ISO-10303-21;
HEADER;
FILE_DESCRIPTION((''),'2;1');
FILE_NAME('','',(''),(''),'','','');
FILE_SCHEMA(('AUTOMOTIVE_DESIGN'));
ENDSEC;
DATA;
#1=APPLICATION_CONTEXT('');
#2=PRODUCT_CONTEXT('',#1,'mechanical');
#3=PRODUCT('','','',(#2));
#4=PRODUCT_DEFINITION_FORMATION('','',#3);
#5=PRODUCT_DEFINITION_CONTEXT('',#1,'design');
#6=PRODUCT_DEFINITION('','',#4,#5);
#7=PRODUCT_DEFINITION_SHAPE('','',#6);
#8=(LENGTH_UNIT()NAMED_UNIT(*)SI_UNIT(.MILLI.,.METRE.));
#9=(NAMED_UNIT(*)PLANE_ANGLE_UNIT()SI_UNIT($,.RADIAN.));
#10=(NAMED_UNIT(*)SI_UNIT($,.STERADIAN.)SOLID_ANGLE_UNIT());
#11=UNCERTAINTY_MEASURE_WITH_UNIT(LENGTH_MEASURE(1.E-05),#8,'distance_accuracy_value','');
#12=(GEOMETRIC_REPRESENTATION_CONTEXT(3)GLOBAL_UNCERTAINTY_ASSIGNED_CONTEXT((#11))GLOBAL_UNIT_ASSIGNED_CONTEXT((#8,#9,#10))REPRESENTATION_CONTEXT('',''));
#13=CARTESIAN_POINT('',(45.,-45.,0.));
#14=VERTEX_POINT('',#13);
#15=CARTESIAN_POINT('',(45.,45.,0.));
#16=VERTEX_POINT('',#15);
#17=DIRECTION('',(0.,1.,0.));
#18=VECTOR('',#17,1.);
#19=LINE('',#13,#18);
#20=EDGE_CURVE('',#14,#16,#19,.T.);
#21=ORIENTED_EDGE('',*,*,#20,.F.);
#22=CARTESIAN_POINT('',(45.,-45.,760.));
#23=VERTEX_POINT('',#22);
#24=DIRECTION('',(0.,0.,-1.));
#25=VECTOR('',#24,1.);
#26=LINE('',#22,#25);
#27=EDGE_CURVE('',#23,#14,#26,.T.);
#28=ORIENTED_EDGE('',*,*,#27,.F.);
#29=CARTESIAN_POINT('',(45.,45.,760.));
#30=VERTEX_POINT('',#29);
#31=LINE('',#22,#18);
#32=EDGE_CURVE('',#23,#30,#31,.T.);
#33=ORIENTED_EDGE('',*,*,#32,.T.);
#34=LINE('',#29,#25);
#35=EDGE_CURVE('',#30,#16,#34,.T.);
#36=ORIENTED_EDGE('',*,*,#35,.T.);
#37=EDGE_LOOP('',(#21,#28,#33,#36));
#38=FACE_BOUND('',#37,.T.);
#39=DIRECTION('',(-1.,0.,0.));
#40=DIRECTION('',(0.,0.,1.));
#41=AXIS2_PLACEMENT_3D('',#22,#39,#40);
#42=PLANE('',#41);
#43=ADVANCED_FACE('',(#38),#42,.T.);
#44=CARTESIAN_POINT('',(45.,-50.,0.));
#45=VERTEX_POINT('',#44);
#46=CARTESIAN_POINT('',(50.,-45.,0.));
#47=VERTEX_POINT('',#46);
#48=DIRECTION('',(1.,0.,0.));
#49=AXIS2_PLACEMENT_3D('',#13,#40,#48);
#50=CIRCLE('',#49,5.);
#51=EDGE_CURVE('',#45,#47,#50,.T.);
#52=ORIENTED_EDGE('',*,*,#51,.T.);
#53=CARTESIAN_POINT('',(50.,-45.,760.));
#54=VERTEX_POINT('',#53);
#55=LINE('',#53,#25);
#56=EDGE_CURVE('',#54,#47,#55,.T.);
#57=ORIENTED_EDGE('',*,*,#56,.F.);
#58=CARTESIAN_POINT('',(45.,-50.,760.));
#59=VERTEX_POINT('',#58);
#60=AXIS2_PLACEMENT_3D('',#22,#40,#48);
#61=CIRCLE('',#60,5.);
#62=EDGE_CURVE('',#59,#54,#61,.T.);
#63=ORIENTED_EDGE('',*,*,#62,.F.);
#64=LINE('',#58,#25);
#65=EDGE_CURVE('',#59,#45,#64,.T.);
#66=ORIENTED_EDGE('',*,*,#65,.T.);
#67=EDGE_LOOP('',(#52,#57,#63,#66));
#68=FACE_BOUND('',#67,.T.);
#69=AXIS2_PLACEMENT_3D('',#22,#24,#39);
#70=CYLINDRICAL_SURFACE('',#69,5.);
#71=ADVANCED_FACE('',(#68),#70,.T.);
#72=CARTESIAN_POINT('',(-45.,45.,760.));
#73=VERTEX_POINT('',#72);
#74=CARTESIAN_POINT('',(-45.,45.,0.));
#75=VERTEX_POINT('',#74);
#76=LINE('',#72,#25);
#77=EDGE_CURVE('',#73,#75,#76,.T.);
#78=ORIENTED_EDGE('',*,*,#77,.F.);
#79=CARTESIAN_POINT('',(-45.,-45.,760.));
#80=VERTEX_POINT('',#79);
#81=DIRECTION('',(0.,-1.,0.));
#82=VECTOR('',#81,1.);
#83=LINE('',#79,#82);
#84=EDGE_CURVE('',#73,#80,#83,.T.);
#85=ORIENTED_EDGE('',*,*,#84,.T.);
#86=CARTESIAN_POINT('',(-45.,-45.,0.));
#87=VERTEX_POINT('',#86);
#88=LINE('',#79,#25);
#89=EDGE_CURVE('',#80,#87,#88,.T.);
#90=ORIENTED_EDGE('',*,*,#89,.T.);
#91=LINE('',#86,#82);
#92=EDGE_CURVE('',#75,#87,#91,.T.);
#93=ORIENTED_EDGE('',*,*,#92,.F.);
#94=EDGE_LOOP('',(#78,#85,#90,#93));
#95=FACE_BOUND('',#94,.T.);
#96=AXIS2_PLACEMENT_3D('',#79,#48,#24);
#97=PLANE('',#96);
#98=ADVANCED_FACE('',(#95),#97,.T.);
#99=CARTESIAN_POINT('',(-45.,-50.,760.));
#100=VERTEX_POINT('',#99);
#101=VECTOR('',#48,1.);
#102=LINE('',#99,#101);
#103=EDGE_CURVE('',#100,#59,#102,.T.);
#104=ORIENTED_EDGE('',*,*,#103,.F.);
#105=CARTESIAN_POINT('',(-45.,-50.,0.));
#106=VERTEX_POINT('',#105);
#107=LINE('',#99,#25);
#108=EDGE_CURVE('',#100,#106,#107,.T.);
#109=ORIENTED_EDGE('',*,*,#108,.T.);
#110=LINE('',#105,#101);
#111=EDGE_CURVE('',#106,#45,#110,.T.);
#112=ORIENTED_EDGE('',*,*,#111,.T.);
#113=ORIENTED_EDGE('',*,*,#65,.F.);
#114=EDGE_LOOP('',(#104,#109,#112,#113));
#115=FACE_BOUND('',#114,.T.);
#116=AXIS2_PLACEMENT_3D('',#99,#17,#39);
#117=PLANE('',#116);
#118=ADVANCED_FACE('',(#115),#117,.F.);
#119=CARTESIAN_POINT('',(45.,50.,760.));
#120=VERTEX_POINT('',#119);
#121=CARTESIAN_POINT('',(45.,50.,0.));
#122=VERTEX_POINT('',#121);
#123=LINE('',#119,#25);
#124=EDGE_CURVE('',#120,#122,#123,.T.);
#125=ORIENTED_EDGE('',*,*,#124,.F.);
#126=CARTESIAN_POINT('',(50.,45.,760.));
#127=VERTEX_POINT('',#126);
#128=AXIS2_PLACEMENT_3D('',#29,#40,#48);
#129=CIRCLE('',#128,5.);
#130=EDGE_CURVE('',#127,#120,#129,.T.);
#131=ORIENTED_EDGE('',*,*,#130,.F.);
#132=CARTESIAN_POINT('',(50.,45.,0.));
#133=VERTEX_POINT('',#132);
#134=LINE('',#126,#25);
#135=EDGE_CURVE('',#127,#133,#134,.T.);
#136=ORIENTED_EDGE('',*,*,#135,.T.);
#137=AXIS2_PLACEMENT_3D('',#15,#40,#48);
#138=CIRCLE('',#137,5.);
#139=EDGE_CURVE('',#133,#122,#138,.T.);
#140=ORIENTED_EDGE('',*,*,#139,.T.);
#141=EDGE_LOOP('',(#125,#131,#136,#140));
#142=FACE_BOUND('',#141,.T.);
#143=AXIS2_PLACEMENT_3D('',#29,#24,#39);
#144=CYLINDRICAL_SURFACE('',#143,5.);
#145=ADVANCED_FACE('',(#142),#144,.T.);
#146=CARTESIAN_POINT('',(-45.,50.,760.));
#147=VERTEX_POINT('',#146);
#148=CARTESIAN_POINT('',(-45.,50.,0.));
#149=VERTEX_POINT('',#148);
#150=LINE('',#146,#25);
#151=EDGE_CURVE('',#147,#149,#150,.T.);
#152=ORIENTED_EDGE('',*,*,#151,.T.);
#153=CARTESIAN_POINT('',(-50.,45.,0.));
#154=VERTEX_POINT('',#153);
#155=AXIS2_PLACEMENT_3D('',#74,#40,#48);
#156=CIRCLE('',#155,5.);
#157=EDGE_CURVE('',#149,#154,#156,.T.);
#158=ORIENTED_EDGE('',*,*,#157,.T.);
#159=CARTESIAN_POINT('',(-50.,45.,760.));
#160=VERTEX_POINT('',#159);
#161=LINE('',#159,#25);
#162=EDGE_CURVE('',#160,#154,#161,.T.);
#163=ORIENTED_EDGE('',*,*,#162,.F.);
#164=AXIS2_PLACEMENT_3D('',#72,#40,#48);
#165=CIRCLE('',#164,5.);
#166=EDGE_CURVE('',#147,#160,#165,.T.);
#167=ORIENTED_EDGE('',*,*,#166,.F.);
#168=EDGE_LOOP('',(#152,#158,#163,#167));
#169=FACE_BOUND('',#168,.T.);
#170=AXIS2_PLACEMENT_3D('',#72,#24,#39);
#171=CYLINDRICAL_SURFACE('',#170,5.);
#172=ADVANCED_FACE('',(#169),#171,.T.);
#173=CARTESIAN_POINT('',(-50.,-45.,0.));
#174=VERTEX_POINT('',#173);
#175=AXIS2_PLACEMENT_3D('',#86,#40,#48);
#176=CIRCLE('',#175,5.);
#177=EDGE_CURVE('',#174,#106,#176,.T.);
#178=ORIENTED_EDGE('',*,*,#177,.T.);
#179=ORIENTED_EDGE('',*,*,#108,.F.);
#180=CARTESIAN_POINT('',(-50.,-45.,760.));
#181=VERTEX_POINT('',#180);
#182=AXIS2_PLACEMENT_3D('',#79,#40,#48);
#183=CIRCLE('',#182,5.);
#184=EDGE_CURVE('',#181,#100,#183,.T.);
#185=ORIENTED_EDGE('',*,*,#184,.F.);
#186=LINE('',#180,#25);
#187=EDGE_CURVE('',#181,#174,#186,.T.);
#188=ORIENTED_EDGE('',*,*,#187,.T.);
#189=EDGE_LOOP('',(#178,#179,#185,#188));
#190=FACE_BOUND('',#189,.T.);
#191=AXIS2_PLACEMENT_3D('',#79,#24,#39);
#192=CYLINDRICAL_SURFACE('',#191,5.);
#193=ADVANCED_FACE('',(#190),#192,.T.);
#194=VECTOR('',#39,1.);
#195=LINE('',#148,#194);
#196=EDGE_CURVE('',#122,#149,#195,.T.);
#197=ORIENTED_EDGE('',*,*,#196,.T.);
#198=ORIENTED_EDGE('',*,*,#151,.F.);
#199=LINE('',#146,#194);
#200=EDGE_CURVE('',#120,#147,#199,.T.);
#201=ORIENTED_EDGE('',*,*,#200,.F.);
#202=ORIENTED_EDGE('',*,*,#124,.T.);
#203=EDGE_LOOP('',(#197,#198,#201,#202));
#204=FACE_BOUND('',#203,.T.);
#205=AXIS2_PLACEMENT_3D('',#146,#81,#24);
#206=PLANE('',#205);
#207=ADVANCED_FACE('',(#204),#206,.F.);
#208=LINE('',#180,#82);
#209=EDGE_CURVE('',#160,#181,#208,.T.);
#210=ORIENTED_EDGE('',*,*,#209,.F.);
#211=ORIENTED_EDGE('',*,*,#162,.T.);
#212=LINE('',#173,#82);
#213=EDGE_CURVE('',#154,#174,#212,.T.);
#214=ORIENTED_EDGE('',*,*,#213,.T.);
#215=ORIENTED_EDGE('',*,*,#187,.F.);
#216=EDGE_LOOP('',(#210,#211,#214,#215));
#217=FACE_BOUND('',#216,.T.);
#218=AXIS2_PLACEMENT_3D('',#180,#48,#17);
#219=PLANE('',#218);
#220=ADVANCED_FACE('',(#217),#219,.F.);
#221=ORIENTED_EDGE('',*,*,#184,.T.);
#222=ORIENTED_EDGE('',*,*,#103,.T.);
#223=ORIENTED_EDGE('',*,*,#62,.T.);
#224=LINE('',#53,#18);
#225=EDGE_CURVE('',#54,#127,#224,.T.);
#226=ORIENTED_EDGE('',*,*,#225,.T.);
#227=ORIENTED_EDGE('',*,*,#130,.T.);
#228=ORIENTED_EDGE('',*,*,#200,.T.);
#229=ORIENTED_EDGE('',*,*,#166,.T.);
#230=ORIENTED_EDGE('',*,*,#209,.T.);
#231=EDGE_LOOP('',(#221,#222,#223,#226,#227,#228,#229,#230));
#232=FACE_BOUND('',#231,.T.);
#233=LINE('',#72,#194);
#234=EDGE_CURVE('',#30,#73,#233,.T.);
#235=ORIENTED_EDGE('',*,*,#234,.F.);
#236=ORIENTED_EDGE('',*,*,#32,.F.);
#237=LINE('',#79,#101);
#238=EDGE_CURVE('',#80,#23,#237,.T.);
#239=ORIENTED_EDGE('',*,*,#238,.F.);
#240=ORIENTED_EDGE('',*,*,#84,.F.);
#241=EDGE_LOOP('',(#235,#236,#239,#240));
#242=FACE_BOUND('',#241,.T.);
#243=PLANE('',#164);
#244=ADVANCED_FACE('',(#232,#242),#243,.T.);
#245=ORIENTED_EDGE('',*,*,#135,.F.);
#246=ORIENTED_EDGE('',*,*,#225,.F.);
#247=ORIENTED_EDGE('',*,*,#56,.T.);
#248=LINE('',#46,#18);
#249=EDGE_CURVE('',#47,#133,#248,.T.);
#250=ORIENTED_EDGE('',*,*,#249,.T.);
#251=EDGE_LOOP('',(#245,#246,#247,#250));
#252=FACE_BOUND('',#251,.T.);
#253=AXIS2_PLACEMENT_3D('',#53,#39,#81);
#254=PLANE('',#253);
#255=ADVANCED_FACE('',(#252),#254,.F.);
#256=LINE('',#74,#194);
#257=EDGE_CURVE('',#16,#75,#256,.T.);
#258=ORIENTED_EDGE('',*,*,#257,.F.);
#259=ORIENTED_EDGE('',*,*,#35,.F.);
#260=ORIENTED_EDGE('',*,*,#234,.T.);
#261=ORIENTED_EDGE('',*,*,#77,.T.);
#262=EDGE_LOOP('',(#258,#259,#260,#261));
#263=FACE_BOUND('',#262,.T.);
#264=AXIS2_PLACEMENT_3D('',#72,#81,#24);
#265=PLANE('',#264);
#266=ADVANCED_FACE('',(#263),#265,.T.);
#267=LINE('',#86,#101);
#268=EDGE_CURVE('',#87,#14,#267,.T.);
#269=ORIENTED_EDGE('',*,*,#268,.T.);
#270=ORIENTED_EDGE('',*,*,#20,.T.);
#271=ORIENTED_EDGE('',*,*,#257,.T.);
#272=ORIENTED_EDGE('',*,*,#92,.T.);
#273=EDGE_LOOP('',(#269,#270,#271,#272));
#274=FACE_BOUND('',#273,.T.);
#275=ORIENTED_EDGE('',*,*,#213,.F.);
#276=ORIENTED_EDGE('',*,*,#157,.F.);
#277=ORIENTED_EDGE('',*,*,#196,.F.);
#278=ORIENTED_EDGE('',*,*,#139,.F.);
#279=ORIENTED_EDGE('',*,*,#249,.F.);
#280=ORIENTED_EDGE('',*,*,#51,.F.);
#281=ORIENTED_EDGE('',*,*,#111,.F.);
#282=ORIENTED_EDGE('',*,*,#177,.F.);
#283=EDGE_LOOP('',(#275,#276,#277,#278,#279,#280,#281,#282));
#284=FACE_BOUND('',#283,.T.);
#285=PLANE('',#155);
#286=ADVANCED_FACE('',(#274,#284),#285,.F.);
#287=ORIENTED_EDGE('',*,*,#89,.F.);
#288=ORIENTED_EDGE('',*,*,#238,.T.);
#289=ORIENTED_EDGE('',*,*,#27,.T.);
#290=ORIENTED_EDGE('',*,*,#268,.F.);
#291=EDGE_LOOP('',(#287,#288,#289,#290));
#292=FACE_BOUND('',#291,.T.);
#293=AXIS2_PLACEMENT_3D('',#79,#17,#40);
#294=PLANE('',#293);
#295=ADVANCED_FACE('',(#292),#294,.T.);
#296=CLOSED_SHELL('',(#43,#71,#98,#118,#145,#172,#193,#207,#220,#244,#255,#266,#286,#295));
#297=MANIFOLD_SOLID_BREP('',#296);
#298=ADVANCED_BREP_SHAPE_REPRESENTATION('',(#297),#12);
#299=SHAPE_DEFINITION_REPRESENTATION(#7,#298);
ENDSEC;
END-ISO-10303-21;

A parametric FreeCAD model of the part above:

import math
import FreeCAD as App
import Part
import Sketcher

V = App.Vector

doc = App.newDocument("Part")
body = doc.addObject("PartDesign::Body", "Body")

# Sketch on XY plane
sketch1 = body.newObject("Sketcher::SketchObject", "Sketch")
sketch1.AttachmentSupport = (doc.getObject("XY_Plane"), [""])
sketch1.MapMode = "FlatFace"
sketch1.addGeometry(Part.LineSegment(V(-45, -50, 0), V(45, -50, 0)), False)
sketch1.addGeometry(Part.ArcOfCircle(Part.Circle(V(45, -45, 0), V(0, 0, 1), 5), math.radians(-90), math.radians(0)), False)
sketch1.addGeometry(Part.LineSegment(V(50, -45, 0), V(50, 45, 0)), False)
sketch1.addGeometry(Part.ArcOfCircle(Part.Circle(V(45, 45, 0), V(0, 0, 1), 5), math.radians(0), math.radians(90)), False)
sketch1.addGeometry(Part.LineSegment(V(45, 50, 0), V(-45, 50, 0)), False)
sketch1.addGeometry(Part.ArcOfCircle(Part.Circle(V(-45, 45, 0), V(0, 0, 1), 5), math.radians(90), math.radians(180)), False)
sketch1.addGeometry(Part.LineSegment(V(-50, 45, 0), V(-50, -45, 0)), False)
sketch1.addGeometry(Part.ArcOfCircle(Part.Circle(V(-45, -45, 0), V(0, 0, 1), 5), math.radians(180), math.radians(270)), False)
sketch1.addGeometry(Part.LineSegment(V(45, -45, 0), V(-45, -45, 0)), False)
sketch1.addGeometry(Part.LineSegment(V(-45, -45, 0), V(-45, 45, 0)), False)
sketch1.addGeometry(Part.LineSegment(V(-45, 45, 0), V(45, 45, 0)), False)
sketch1.addGeometry(Part.LineSegment(V(45, 45, 0), V(45, -45, 0)), False)
sketch1.addConstraint(Sketcher.Constraint("Tangent", 0, 2, 1, 1))
sketch1.addConstraint(Sketcher.Constraint("Tangent", 1, 2, 2, 1))
sketch1.addConstraint(Sketcher.Constraint("Tangent", 2, 2, 3, 1))
sketch1.addConstraint(Sketcher.Constraint("Tangent", 3, 2, 4, 1))
sketch1.addConstraint(Sketcher.Constraint("Tangent", 4, 2, 5, 1))
sketch1.addConstraint(Sketcher.Constraint("Tangent", 5, 2, 6, 1))
sketch1.addConstraint(Sketcher.Constraint("Tangent", 6, 2, 7, 1))
sketch1.addConstraint(Sketcher.Constraint("Tangent", 7, 2, 0, 1))
sketch1.addConstraint(Sketcher.Constraint("Coincident", 8, 2, 9, 1))
sketch1.addConstraint(Sketcher.Constraint("Coincident", 9, 2, 10, 1))
sketch1.addConstraint(Sketcher.Constraint("Coincident", 10, 2, 11, 1))
sketch1.addConstraint(Sketcher.Constraint("Coincident", 11, 2, 8, 1))
sketch1.addConstraint(Sketcher.Constraint("Horizontal", 0))
sketch1.addConstraint(Sketcher.Constraint("Vertical", 2))
sketch1.addConstraint(Sketcher.Constraint("Horizontal", 4))
sketch1.addConstraint(Sketcher.Constraint("Vertical", 6))
sketch1.addConstraint(Sketcher.Constraint("Horizontal", 8))
sketch1.addConstraint(Sketcher.Constraint("Vertical", 9))
sketch1.addConstraint(Sketcher.Constraint("Horizontal", 10))
sketch1.addConstraint(Sketcher.Constraint("Vertical", 11))
sketch1.addConstraint(Sketcher.Constraint("Coincident", 8, 2, 7, 3))
sketch1.addConstraint(Sketcher.Constraint("Coincident", 9, 2, 5, 3))
sketch1.addConstraint(Sketcher.Constraint("Coincident", 10, 2, 3, 3))
sketch1.addConstraint(Sketcher.Constraint("Equal", 1, 3))
sketch1.addConstraint(Sketcher.Constraint("Symmetric", 1, 3, 5, 3, -1, 1))
sketch1.addConstraint(Sketcher.Constraint("Equal", 10, 2))
sketch1.addConstraint(Sketcher.Constraint("Radius", 1, 5.0))
sketch1.addConstraint(Sketcher.Constraint("DistanceX", 0, 1, 0, 2, 90.0))
pad1 = body.newObject("PartDesign::Pad", "Pad")
pad1.Profile = sketch1
pad1.Length = 760

doc.recompute()
